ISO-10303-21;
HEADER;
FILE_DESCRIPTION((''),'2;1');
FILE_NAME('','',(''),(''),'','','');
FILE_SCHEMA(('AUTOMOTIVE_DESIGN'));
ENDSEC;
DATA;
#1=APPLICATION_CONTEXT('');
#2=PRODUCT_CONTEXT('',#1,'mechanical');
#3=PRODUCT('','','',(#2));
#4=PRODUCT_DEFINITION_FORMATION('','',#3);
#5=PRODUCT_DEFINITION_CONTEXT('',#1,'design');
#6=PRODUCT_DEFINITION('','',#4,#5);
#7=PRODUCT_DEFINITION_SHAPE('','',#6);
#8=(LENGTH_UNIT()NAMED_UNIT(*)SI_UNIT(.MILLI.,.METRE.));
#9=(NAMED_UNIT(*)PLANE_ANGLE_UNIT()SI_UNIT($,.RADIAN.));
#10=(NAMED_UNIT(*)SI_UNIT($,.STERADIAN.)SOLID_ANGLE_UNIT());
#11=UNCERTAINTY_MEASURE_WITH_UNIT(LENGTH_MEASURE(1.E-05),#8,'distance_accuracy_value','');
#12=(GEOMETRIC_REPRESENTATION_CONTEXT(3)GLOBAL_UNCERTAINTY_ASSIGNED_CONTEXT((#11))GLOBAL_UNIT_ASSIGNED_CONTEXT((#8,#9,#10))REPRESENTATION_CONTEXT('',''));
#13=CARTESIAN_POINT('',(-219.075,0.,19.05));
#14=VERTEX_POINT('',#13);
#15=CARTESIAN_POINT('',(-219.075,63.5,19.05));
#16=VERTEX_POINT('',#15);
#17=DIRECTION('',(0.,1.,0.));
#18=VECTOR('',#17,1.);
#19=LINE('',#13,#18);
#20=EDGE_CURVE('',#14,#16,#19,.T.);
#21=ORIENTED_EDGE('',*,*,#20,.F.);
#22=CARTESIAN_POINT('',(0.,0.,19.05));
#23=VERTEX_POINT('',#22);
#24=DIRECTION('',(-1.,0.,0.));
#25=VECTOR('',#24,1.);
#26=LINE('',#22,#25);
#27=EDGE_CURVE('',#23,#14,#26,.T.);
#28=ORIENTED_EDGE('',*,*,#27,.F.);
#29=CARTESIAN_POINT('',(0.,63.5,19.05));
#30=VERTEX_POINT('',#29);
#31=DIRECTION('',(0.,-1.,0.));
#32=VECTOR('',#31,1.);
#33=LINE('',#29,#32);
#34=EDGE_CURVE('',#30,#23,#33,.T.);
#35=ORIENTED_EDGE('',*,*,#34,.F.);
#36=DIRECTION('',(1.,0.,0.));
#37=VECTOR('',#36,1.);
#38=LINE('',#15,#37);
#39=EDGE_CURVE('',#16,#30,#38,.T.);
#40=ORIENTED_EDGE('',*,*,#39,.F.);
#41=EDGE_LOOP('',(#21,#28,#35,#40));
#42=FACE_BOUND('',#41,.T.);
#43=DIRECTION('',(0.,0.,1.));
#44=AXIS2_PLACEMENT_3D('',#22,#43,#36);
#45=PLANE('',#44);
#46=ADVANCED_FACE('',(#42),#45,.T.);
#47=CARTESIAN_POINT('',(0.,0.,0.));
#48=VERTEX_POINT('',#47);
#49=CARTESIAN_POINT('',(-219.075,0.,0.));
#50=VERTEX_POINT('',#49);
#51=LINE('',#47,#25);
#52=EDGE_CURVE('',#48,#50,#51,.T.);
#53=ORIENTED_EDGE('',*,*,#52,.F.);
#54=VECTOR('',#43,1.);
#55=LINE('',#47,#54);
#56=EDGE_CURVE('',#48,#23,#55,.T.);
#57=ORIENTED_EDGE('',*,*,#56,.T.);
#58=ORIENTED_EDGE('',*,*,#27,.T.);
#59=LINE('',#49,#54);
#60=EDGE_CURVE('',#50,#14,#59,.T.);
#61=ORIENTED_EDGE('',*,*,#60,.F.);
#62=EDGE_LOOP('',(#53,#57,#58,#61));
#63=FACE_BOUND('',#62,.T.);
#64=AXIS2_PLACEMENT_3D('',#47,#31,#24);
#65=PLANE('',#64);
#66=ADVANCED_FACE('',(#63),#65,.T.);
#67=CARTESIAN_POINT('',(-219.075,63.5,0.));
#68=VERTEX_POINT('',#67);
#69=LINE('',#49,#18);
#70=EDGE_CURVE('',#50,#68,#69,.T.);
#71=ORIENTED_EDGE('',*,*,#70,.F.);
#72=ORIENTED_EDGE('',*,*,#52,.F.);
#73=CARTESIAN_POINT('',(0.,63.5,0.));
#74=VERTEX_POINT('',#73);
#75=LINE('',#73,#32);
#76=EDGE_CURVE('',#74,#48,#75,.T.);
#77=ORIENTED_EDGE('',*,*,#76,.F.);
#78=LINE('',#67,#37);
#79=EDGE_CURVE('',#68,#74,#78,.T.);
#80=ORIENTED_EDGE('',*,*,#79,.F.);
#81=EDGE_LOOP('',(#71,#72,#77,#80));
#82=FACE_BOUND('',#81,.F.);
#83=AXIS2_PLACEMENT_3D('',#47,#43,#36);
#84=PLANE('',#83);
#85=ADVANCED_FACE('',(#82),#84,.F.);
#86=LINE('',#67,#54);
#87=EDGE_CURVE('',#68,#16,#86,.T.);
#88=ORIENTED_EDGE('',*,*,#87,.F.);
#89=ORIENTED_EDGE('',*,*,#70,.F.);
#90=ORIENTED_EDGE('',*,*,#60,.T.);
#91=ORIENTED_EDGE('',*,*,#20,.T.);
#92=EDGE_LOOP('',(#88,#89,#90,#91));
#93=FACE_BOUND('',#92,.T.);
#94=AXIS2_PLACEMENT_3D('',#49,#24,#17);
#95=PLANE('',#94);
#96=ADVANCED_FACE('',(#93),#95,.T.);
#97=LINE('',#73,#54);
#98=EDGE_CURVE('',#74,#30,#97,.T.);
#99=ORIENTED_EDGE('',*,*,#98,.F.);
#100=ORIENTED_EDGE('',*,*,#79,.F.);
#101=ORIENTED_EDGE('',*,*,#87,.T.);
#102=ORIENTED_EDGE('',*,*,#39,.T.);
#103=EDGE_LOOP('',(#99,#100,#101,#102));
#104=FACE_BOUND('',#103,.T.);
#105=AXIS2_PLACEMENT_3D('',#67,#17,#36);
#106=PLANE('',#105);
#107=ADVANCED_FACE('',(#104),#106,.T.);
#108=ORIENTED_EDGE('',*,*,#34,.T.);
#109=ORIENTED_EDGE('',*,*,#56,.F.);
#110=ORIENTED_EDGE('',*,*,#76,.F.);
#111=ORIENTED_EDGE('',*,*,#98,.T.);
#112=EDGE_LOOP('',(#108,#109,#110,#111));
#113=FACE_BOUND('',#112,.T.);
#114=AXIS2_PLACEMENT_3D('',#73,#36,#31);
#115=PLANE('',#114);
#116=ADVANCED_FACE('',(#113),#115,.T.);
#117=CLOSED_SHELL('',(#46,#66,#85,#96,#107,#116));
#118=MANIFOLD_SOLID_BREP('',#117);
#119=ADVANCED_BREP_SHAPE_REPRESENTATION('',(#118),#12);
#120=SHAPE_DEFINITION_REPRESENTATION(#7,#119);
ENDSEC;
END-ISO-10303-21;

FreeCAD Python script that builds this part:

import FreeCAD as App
import Part
import Sketcher

V = App.Vector
Q = App.Units.Quantity


def add_polygon(sketch, points):
    """Adds a closed chain of lines whose ends are joined by coincident constraints."""
    first, n = sketch.GeometryCount, len(points)
    for a, b in zip(points, points[1:] + points[:1]):
        sketch.addGeometry(Part.LineSegment(App.Vector(*a, 0), App.Vector(*b, 0)), False)
    for i in range(n):
        sketch.addConstraint(Sketcher.Constraint("Coincident", first + i, 2, first + (i + 1) % n, 1))

doc = App.newDocument("Part")
body = doc.addObject("PartDesign::Body", "Body")

# Sketch on XY plane
sketch1 = doc.addObject("Sketcher::SketchObject", "Sketch")
body.addObject(sketch1)
sketch1.AttachmentSupport = (doc.XY_Plane, [""])
sketch1.MapMode = "FlatFace"
add_polygon(sketch1, [(0, 64), (-219, 64), (-219, 0), (0, 0)])  # lines 0-3
sketch1.addConstraint([
    Sketcher.Constraint("Horizontal", 0),
    Sketcher.Constraint("Vertical", 1),
    Sketcher.Constraint("Horizontal", 2),
    Sketcher.Constraint("Vertical", 3),
    Sketcher.Constraint("Coincident", 2, 2, -1, 1),
    Sketcher.Constraint("DistanceY", 1, 2, 1, 1, Q("2.5 in")),
    Sketcher.Constraint("DistanceX", 0, 2, 0, 1, Q("8.625 in")),
])
pad1 = doc.addObject("PartDesign::Pad", "Pad")
body.addObject(pad1)
pad1.Profile = sketch1
pad1.Length = Q("0.75 in")

doc.recompute()
